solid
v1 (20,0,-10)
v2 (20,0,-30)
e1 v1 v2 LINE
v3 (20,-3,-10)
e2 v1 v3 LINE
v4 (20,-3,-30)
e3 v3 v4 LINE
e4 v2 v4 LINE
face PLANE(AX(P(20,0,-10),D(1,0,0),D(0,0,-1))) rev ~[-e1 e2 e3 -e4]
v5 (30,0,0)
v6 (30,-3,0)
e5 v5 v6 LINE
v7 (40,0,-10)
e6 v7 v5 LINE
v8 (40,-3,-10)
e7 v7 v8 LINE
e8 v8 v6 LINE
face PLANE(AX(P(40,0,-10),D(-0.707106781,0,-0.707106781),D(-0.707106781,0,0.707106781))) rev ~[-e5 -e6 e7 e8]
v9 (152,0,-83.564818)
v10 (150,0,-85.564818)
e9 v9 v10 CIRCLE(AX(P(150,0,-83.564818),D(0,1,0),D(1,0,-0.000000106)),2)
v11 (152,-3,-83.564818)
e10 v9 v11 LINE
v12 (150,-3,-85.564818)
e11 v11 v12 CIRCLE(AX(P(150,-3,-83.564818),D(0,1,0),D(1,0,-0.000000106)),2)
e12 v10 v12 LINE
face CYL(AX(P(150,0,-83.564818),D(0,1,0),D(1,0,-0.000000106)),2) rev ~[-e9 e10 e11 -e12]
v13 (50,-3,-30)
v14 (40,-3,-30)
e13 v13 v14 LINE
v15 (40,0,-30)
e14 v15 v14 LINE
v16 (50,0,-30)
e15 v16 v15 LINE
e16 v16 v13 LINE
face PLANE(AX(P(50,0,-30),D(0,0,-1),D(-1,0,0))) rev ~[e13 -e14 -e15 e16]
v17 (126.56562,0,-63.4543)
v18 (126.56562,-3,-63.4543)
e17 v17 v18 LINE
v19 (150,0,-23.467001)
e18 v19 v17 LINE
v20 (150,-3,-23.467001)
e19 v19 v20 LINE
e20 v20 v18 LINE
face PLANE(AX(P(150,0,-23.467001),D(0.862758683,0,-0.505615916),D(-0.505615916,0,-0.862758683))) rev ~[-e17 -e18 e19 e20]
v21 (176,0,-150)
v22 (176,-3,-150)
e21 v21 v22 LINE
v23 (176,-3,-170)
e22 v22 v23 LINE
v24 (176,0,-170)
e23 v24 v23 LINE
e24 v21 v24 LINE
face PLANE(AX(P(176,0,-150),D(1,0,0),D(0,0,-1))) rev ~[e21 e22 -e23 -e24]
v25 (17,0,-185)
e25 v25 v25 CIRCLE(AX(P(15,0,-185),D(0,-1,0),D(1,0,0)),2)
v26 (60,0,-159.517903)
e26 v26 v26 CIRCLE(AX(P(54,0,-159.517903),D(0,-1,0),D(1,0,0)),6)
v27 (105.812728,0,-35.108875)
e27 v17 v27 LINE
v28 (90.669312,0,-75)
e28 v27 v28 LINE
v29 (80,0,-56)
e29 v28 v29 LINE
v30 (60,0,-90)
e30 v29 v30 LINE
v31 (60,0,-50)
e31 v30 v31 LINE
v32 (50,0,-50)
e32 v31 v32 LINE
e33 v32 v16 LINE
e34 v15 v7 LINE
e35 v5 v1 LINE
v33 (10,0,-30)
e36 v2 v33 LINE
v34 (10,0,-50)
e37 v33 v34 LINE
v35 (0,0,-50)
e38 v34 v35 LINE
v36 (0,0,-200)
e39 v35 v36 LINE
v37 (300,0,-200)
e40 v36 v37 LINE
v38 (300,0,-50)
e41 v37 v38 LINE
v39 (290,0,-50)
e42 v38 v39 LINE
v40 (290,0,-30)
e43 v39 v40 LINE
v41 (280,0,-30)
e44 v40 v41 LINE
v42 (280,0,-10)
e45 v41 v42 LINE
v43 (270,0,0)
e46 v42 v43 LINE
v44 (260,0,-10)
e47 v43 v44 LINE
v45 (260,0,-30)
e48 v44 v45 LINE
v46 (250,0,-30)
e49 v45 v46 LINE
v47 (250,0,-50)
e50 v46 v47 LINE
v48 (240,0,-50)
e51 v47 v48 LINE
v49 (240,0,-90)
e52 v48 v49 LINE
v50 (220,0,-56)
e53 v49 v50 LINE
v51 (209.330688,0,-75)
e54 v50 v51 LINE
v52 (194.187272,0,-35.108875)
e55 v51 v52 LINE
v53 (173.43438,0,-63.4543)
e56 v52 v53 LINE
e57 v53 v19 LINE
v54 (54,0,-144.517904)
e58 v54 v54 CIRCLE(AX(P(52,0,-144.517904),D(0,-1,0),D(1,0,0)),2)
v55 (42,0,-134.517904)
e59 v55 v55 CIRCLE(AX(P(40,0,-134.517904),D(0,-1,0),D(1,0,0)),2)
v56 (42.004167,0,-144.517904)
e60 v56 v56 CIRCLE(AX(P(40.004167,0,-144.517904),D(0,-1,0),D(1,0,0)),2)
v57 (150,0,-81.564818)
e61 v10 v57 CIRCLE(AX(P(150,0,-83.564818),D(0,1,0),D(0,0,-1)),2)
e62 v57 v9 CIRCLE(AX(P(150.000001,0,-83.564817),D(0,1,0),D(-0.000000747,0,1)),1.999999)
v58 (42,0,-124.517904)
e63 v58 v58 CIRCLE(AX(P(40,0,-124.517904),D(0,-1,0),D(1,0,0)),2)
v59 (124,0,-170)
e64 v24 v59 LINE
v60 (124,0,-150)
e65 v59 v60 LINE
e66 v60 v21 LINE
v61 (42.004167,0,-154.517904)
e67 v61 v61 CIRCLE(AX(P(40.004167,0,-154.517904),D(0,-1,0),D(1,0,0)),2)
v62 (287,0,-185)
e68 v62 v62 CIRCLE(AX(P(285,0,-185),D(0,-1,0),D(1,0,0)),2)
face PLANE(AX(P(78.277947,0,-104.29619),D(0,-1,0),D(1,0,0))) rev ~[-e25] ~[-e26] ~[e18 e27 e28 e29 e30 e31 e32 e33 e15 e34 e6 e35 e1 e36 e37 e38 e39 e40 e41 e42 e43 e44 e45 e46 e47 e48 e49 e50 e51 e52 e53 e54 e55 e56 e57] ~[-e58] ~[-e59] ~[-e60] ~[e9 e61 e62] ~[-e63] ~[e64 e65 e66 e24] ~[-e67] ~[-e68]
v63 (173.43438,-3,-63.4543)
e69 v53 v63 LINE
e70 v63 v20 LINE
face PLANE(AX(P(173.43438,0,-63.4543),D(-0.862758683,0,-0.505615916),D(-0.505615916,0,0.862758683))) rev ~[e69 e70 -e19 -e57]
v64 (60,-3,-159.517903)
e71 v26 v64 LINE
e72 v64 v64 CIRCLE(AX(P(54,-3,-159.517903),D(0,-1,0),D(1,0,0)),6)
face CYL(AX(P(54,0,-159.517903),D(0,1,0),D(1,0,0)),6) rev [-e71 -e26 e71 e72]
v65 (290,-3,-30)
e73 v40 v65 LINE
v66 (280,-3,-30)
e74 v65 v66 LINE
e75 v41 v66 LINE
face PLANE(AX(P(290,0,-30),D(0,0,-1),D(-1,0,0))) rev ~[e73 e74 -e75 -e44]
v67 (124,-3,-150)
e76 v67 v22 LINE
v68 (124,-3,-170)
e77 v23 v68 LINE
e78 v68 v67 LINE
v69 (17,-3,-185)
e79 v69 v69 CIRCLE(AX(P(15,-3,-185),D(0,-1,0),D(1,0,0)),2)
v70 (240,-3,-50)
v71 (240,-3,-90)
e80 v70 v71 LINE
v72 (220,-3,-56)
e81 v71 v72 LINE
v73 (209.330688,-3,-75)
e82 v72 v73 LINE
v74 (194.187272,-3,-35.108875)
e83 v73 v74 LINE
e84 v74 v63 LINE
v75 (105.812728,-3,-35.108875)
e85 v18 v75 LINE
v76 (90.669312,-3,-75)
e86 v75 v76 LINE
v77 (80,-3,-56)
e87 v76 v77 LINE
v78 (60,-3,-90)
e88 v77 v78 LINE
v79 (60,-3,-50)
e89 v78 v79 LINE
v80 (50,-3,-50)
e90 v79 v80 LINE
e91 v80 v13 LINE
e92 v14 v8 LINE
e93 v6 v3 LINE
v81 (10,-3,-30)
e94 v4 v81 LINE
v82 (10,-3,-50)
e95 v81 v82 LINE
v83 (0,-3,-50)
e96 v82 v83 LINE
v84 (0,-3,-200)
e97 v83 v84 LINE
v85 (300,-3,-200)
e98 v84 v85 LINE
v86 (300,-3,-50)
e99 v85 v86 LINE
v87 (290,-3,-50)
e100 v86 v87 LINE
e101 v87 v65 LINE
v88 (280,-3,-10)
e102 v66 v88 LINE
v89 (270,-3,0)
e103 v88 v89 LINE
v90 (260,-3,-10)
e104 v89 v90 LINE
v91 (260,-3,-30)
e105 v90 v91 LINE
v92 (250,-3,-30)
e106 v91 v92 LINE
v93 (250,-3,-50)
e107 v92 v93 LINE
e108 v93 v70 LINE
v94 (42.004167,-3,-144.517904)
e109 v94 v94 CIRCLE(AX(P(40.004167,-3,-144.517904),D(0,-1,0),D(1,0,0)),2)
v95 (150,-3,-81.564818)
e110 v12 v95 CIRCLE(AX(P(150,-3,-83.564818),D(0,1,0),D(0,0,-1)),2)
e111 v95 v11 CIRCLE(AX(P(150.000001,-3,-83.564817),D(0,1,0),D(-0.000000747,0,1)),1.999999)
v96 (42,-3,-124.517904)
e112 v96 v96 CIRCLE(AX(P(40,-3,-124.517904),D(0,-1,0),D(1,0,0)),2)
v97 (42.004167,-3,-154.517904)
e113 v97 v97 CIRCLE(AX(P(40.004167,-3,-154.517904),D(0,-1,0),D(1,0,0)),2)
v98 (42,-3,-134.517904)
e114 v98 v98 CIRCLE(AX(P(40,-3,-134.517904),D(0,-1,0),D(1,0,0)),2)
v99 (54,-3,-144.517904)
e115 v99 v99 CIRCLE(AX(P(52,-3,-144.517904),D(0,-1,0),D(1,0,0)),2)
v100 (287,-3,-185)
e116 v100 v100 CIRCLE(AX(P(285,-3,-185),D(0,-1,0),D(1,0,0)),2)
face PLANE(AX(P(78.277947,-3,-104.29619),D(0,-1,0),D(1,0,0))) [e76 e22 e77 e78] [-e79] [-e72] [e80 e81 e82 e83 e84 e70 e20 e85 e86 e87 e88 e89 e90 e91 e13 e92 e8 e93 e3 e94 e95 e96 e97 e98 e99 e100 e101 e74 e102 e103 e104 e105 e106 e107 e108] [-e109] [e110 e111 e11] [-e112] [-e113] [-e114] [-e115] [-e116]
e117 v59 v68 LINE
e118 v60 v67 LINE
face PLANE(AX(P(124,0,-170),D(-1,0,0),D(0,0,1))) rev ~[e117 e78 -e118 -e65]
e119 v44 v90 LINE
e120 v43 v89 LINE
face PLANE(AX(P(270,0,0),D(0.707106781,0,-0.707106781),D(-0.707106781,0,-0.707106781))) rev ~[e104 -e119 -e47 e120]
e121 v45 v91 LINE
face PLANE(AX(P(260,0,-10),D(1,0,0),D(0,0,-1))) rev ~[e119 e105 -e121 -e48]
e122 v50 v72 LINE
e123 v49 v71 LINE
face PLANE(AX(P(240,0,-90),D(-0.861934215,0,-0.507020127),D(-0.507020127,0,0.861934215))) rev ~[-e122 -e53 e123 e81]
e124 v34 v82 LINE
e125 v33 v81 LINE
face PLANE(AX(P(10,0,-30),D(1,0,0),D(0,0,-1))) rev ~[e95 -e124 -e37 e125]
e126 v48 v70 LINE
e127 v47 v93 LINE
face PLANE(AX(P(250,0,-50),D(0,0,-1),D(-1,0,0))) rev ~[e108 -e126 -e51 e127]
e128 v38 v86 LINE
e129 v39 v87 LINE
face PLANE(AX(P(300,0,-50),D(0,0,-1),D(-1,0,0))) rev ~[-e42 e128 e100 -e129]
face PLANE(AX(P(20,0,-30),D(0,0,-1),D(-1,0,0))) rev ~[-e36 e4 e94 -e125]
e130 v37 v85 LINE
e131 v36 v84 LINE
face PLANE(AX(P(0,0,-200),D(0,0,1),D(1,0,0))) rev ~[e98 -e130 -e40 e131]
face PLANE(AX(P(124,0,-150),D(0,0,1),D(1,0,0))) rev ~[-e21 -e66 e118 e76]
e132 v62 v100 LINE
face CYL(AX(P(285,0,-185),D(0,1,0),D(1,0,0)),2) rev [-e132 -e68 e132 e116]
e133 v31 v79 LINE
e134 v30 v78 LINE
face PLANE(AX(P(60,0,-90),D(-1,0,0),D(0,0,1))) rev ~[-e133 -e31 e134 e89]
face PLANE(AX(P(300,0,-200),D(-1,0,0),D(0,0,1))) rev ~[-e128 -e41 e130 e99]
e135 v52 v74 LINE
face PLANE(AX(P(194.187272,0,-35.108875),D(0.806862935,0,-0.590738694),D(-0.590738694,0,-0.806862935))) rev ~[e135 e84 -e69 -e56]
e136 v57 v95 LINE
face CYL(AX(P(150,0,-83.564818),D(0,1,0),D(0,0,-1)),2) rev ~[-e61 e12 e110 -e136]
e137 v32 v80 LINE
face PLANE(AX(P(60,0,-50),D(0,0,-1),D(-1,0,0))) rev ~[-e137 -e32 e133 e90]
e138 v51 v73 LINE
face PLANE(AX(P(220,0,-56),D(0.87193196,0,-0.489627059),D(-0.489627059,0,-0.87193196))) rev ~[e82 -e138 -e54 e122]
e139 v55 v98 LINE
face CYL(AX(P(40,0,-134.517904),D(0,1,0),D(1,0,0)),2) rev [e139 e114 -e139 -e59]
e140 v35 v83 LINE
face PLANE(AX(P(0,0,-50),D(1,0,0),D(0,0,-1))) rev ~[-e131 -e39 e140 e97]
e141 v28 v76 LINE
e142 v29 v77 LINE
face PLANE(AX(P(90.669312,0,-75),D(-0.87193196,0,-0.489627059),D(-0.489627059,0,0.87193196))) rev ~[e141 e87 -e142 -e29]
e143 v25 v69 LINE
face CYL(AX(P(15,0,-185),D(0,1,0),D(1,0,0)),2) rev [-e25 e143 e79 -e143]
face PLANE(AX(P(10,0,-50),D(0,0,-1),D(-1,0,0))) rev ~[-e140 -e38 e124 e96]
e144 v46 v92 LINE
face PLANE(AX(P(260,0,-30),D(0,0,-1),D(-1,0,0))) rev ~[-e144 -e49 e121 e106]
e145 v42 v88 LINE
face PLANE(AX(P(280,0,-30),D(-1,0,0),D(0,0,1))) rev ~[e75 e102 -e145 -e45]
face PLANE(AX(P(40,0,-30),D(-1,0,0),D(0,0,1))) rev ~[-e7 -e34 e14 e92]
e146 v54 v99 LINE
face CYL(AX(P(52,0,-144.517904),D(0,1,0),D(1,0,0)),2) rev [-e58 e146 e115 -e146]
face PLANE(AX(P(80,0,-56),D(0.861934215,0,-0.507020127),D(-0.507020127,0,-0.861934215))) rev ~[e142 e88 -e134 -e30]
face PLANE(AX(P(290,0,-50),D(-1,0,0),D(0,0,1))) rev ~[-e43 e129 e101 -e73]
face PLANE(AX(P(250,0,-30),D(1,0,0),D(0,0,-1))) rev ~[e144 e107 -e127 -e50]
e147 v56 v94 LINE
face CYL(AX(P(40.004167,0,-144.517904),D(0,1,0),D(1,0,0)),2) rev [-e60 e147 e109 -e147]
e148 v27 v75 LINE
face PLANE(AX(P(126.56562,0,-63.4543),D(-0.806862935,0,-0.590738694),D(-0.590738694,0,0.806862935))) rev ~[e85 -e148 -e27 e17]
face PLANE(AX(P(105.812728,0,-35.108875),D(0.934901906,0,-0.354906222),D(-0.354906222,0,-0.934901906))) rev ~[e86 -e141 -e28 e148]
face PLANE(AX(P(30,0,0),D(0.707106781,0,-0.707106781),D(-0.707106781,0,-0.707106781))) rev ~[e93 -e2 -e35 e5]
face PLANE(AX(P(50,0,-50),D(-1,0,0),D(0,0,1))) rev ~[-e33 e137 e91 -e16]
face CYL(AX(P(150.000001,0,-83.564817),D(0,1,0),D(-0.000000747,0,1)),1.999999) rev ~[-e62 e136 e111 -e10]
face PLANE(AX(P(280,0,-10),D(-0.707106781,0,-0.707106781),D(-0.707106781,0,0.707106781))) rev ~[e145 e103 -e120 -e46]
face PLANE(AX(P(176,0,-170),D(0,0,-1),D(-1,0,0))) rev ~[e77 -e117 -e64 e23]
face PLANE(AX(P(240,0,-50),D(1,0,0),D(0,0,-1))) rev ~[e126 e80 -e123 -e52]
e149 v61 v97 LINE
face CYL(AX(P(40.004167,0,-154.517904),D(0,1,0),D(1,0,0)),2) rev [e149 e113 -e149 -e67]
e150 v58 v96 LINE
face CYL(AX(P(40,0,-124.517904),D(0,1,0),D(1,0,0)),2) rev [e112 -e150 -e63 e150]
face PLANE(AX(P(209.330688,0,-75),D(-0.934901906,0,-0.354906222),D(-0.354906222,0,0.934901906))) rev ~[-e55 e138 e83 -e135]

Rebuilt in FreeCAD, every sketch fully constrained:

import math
import FreeCAD as App
import Part
import Sketcher
from FreeCAD import Vector
Q = App.Units.Quantity


def add_polygon(sketch, points):
    """Adds a closed chain of lines whose ends are joined by coincident constraints."""
    first, n = sketch.GeometryCount, len(points)
    for a, b in zip(points, points[1:] + points[:1]):
        sketch.addGeometry(Part.LineSegment(App.Vector(*a, 0), App.Vector(*b, 0)), False)
    for i in range(n):
        sketch.addConstraint(Sketcher.Constraint("Coincident", first + i, 2, first + (i + 1) % n, 1))

doc = App.newDocument("Part")
body = doc.addObject("PartDesign::Body", "Body")

sketch1 = body.newObject("Sketcher::SketchObject", "Sketch")
sketch1.AttachmentSupport = (doc.getObject("XZ_Plane"), [""])
sketch1.MapMode = "FlatFace"
add_polygon(sketch1, [(0, -50), (0, -200), (300, -200), (300, -50), (290, -50), (290, -30), (280, -30), (280, -10), (270, 0), (260, -10), (260, -30), (250, -30), (250, -50), (240, -50), (240, -90), (220, -56), (209.330688, -75), (194.187272, -35.108875), (173.43438, -63.4543), (150, -23.467001), (126.56562, -63.4543), (105.812728, -35.108875), (90.669312, -75), (80, -56), (60, -90), (60, -50), (50, -50), (50, -30), (40, -30), (40, -10), (30, 0), (20, -10), (20, -30), (10, -30), (10, -50)])
sketch1.addGeometry(Part.Circle(Vector(15, -185, 0), Vector(0, 0, 1), 2), False)
sketch1.addGeometry(Part.Circle(Vector(40.004167, -154.517904, 0), Vector(0, 0, 1), 2), False)
sketch1.addGeometry(Part.Circle(Vector(54, -159.517903, 0), Vector(0, 0, 1), 6), False)
sketch1.addGeometry(Part.Circle(Vector(40.004167, -144.517904, 0), Vector(0, 0, 1), 2), False)
sketch1.addGeometry(Part.Circle(Vector(40, -134.517904, 0), Vector(0, 0, 1), 2), False)
sketch1.addGeometry(Part.Circle(Vector(52, -144.517904, 0), Vector(0, 0, 1), 2), False)
sketch1.addGeometry(Part.Circle(Vector(285, -185, 0), Vector(0, 0, 1), 2), False)
add_polygon(sketch1, [(124, -170), (124, -150), (176, -150), (176, -170)])
sketch1.addGeometry(Part.Circle(Vector(40, -124.517904, 0), Vector(0, 0, 1), 2), False)
sketch1.addGeometry(Part.ArcOfCircle(Part.Circle(Vector(150, -83.564818, 0), Vector(0, 0, 1), 2), math.radians(90), math.radians(270)), False)
sketch1.addGeometry(Part.ArcOfCircle(Part.Circle(Vector(150.000001, -83.564817, 0), Vector(0, 0, 1), 1.999999), math.radians(-0.000043), math.radians(90.000043)), False)
sketch1.addGeometry(Part.ArcOfCircle(Part.Circle(Vector(150, -83.564818, 0), Vector(0, 0, 1), 2), math.radians(-89.999994), math.radians(-0.000006)), False)
sketch1.addConstraint(Sketcher.Constraint("Tangent", 47, 1, 48, 2))
sketch1.addConstraint(Sketcher.Constraint("Tangent", 48, 1, 49, 2))
sketch1.addConstraint(Sketcher.Constraint("Tangent", 49, 1, 47, 2))
sketch1.addConstraint(Sketcher.Constraint("Vertical", 0))
sketch1.addConstraint(Sketcher.Constraint("Horizontal", 1))
sketch1.addConstraint(Sketcher.Constraint("Vertical", 2))
sketch1.addConstraint(Sketcher.Constraint("Horizontal", 3))
sketch1.addConstraint(Sketcher.Constraint("Vertical", 4))
sketch1.addConstraint(Sketcher.Constraint("Horizontal", 5))
sketch1.addConstraint(Sketcher.Constraint("Vertical", 6))
sketch1.addConstraint(Sketcher.Constraint("Vertical", 9))
sketch1.addConstraint(Sketcher.Constraint("Horizontal", 10))
sketch1.addConstraint(Sketcher.Constraint("Vertical", 11))
sketch1.addConstraint(Sketcher.Constraint("Horizontal", 12))
sketch1.addConstraint(Sketcher.Constraint("Vertical", 13))
sketch1.addConstraint(Sketcher.Constraint("Vertical", 24))
sketch1.addConstraint(Sketcher.Constraint("Horizontal", 25))
sketch1.addConstraint(Sketcher.Constraint("Vertical", 26))
sketch1.addConstraint(Sketcher.Constraint("Horizontal", 27))
sketch1.addConstraint(Sketcher.Constraint("Vertical", 28))
sketch1.addConstraint(Sketcher.Constraint("Vertical", 31))
sketch1.addConstraint(Sketcher.Constraint("Horizontal", 32))
sketch1.addConstraint(Sketcher.Constraint("Vertical", 33))
sketch1.addConstraint(Sketcher.Constraint("Horizontal", 34))
sketch1.addConstraint(Sketcher.Constraint("Vertical", 42))
sketch1.addConstraint(Sketcher.Constraint("Horizontal", 43))
sketch1.addConstraint(Sketcher.Constraint("Vertical", 44))
sketch1.addConstraint(Sketcher.Constraint("Horizontal", 45))
sketch1.addConstraint(Sketcher.Constraint("Equal", 35, 36))
sketch1.addConstraint(Sketcher.Constraint("Equal", 36, 38))
sketch1.addConstraint(Sketcher.Constraint("Equal", 38, 39))
sketch1.addConstraint(Sketcher.Constraint("Equal", 39, 40))
sketch1.addConstraint(Sketcher.Constraint("Equal", 40, 41))
sketch1.addConstraint(Sketcher.Constraint("Equal", 41, 46))
sketch1.addConstraint(Sketcher.Constraint("Equal", 46, 47))
sketch1.addConstraint(Sketcher.Constraint("PointOnObject", 0, 2, -2))
sketch1.addConstraint(Sketcher.Constraint("PointOnObject", 7, 2, -1))
sketch1.addConstraint(Sketcher.Constraint("PointOnObject", 29, 2, -1))
sketch1.addConstraint(Sketcher.Constraint("Perpendicular", 7, 8))
sketch1.addConstraint(Sketcher.Constraint("Perpendicular", 8, 29))
sketch1.addConstraint(Sketcher.Constraint("Perpendicular", 29, 30))
sketch1.addConstraint(Sketcher.Constraint("Horizontal", 38, 3, 40, 3))
sketch1.addConstraint(Sketcher.Constraint("Horizontal", 35, 3, 41, 3))
sketch1.addConstraint(Sketcher.Constraint("Horizontal", 6, 2, 8, 2))
sketch1.addConstraint(Sketcher.Constraint("Horizontal", 5, 2, 9, 2))
sketch1.addConstraint(Sketcher.Constraint("Horizontal", 3, 2, 11, 2))
sketch1.addConstraint(Sketcher.Constraint("Horizontal", 17, 2, 19, 2))
sketch1.addConstraint(Sketcher.Constraint("Horizontal", 16, 2, 20, 2))
sketch1.addConstraint(Sketcher.Constraint("Horizontal", 15, 2, 21, 2))
sketch1.addConstraint(Sketcher.Constraint("Horizontal", 14, 2, 22, 2))
sketch1.addConstraint(Sketcher.Constraint("Horizontal", 13, 2, 23, 2))
sketch1.addConstraint(Sketcher.Constraint("Horizontal", 12, 2, 24, 2))
sketch1.addConstraint(Sketcher.Constraint("Horizontal", 10, 2, 26, 2))
sketch1.addConstraint(Sketcher.Constraint("Horizontal", 8, 2, 28, 2))
sketch1.addConstraint(Sketcher.Constraint("Horizontal", 28, 2, 30, 2))
sketch1.addConstraint(Sketcher.Constraint("Horizontal", 27, 2, 31, 2))
sketch1.addConstraint(Sketcher.Constraint("Horizontal", 25, 2, 33, 2))
sketch1.addConstraint(Sketcher.Constraint("Horizontal", 49, 3, 48, 1))
sketch1.addConstraint(Sketcher.Constraint("Vertical", 36, 3, 38, 3))
sketch1.addConstraint(Sketcher.Constraint("Vertical", 39, 3, 46, 3))
sketch1.addConstraint(Sketcher.Constraint("Vertical", 49, 3, 18, 2))
sketch1.addConstraint(Sketcher.Constraint("Vertical", 46, 3, 27, 2))
sketch1.addConstraint(Sketcher.Constraint("Vertical", 18, 2, 47, 1))
sketch1.addConstraint(Sketcher.Constraint("Vertical", 47, 1, 49, 1))
sketch1.addConstraint(Sketcher.Constraint("Equal", 3, 5))
sketch1.addConstraint(Sketcher.Constraint("Equal", 5, 10))
sketch1.addConstraint(Sketcher.Constraint("Equal", 10, 12))
sketch1.addConstraint(Sketcher.Constraint("Equal", 12, 25))
sketch1.addConstraint(Sketcher.Constraint("Equal", 25, 27))
sketch1.addConstraint(Sketcher.Constraint("Equal", 27, 32))
sketch1.addConstraint(Sketcher.Constraint("Equal", 32, 34))
sketch1.addConstraint(Sketcher.Constraint("Equal", 4, 6))
sketch1.addConstraint(Sketcher.Constraint("Equal", 33, 42))
sketch1.addConstraint(Sketcher.Constraint("Equal", 7, 8))
sketch1.addConstraint(Sketcher.Constraint("Equal", 18, 19))
sketch1.addConstraint(Sketcher.Constraint("Equal", 17, 20))
sketch1.addConstraint(Sketcher.Constraint("Equal", 16, 21))
sketch1.addConstraint(Sketcher.Constraint("Equal", 15, 22))
sketch1.addConstraint(Sketcher.Constraint("Equal", 14, 23))
sketch1.addConstraint(Sketcher.Constraint("Diameter", 35, Q("4 mm")))
sketch1.addConstraint(Sketcher.Constraint("Diameter", 37, Q("12 mm")))
sketch1.addConstraint(Sketcher.Constraint("DistanceX", 1, 1, 1, 2, Q("300 mm")))
sketch1.addConstraint(Sketcher.Constraint("DistanceX", 3, 2, 3, 1, Q("10 mm")))
sketch1.addConstraint(Sketcher.Constraint("DistanceX", 43, 1, 43, 2, Q("52 mm")))
sketch1.addConstraint(Sketcher.Constraint("DistanceY", 0, 2, 0, 1, Q("150 mm")))
sketch1.addConstraint(Sketcher.Constraint("DistanceY", 4, 1, 4, 2, Q("20 mm")))
sketch1.addConstraint(Sketcher.Constraint("DistanceY", 13, 2, 13, 1, Q("40 mm")))
sketch1.addConstraint(Sketcher.Constraint("DistanceX", -1, 1, 35, 3, Q("15 mm")))
sketch1.addConstraint(Sketcher.Constraint("DistanceY", 35, 3, -1, 1, Q("185 mm")))
sketch1.addConstraint(Sketcher.Constraint("DistanceX", -1, 1, 37, 3, Q("54 mm")))
sketch1.addConstraint(Sketcher.Constraint("DistanceX", -1, 1, 39, 3, Q("40 mm")))
sketch1.addConstraint(Sketcher.Constraint("DistanceX", -1, 1, 40, 3, Q("52 mm")))
sketch1.addConstraint(Sketcher.Constraint("DistanceX", -1, 1, 41, 3, Q("285 mm")))
sketch1.addConstraint(Sketcher.Constraint("DistanceX", -1, 1, 14, 2, Q("220 mm")))
sketch1.addConstraint(Sketcher.Constraint("DistanceY", 14, 2, -1, 1, Q("56 mm")))
sketch1.addConstraint(Sketcher.Constraint("DistanceY", 15, 2, -1, 1, Q("75 mm")))
sketch1.addConstraint(Sketcher.Constraint("DistanceX", -1, 1, 42, 2, Q("124 mm")))
sketch1.addConstraint(Sketcher.Constraint("DistanceY", 42, 2, -1, 1, Q("150 mm")))
sketch1.addConstraint(Sketcher.Constraint("DistanceY", 37, 3, 36, 3, Q("4.999999 mm")))
sketch1.addConstraint(Sketcher.Constraint("DistanceY", 36, 3, 38, 3, Q("10 mm")))
sketch1.addConstraint(Sketcher.Constraint("DistanceY", 38, 3, 39, 3, Q("10 mm")))
sketch1.addConstraint(Sketcher.Constraint("DistanceY", 39, 3, 46, 3, Q("10 mm")))
sketch1.addConstraint(Sketcher.Constraint("DistanceY", 18, 2, -1, 1, Q("23.467001 mm")))
sketch1.addConstraint(Sketcher.Constraint("DistanceY", 17, 2, -1, 1, Q("63.4543 mm")))
sketch1.addConstraint(Sketcher.Constraint("Distance", 15, Q("21.790691 mm")))
sketch1.addConstraint(Sketcher.Constraint("Distance", 16, Q("42.668781 mm")))
sketch1.addConstraint(Sketcher.Constraint("Distance", 17, Q("35.130409 mm")))
sketch1.addConstraint(Sketcher.Constraint("DistanceY", 47, 3, -1, 1, Q("83.564818 mm")))
sketch1.addConstraint(Sketcher.Constraint("DistanceX", -1, 1, 16, 2, Q("194.187272 mm")))
sketch1.addConstraint(Sketcher.Constraint("DistanceX", -1, 1, 36, 3, Q("40.004167 mm")))
sketch1.addConstraint(Sketcher.Constraint("DistanceY", 36, 3, -1, 1, Q("154.517904 mm")))
pad1 = body.newObject("PartDesign::Pad", "Pad")
pad1.Profile = sketch1
pad1.Length = 3

doc.recompute()
